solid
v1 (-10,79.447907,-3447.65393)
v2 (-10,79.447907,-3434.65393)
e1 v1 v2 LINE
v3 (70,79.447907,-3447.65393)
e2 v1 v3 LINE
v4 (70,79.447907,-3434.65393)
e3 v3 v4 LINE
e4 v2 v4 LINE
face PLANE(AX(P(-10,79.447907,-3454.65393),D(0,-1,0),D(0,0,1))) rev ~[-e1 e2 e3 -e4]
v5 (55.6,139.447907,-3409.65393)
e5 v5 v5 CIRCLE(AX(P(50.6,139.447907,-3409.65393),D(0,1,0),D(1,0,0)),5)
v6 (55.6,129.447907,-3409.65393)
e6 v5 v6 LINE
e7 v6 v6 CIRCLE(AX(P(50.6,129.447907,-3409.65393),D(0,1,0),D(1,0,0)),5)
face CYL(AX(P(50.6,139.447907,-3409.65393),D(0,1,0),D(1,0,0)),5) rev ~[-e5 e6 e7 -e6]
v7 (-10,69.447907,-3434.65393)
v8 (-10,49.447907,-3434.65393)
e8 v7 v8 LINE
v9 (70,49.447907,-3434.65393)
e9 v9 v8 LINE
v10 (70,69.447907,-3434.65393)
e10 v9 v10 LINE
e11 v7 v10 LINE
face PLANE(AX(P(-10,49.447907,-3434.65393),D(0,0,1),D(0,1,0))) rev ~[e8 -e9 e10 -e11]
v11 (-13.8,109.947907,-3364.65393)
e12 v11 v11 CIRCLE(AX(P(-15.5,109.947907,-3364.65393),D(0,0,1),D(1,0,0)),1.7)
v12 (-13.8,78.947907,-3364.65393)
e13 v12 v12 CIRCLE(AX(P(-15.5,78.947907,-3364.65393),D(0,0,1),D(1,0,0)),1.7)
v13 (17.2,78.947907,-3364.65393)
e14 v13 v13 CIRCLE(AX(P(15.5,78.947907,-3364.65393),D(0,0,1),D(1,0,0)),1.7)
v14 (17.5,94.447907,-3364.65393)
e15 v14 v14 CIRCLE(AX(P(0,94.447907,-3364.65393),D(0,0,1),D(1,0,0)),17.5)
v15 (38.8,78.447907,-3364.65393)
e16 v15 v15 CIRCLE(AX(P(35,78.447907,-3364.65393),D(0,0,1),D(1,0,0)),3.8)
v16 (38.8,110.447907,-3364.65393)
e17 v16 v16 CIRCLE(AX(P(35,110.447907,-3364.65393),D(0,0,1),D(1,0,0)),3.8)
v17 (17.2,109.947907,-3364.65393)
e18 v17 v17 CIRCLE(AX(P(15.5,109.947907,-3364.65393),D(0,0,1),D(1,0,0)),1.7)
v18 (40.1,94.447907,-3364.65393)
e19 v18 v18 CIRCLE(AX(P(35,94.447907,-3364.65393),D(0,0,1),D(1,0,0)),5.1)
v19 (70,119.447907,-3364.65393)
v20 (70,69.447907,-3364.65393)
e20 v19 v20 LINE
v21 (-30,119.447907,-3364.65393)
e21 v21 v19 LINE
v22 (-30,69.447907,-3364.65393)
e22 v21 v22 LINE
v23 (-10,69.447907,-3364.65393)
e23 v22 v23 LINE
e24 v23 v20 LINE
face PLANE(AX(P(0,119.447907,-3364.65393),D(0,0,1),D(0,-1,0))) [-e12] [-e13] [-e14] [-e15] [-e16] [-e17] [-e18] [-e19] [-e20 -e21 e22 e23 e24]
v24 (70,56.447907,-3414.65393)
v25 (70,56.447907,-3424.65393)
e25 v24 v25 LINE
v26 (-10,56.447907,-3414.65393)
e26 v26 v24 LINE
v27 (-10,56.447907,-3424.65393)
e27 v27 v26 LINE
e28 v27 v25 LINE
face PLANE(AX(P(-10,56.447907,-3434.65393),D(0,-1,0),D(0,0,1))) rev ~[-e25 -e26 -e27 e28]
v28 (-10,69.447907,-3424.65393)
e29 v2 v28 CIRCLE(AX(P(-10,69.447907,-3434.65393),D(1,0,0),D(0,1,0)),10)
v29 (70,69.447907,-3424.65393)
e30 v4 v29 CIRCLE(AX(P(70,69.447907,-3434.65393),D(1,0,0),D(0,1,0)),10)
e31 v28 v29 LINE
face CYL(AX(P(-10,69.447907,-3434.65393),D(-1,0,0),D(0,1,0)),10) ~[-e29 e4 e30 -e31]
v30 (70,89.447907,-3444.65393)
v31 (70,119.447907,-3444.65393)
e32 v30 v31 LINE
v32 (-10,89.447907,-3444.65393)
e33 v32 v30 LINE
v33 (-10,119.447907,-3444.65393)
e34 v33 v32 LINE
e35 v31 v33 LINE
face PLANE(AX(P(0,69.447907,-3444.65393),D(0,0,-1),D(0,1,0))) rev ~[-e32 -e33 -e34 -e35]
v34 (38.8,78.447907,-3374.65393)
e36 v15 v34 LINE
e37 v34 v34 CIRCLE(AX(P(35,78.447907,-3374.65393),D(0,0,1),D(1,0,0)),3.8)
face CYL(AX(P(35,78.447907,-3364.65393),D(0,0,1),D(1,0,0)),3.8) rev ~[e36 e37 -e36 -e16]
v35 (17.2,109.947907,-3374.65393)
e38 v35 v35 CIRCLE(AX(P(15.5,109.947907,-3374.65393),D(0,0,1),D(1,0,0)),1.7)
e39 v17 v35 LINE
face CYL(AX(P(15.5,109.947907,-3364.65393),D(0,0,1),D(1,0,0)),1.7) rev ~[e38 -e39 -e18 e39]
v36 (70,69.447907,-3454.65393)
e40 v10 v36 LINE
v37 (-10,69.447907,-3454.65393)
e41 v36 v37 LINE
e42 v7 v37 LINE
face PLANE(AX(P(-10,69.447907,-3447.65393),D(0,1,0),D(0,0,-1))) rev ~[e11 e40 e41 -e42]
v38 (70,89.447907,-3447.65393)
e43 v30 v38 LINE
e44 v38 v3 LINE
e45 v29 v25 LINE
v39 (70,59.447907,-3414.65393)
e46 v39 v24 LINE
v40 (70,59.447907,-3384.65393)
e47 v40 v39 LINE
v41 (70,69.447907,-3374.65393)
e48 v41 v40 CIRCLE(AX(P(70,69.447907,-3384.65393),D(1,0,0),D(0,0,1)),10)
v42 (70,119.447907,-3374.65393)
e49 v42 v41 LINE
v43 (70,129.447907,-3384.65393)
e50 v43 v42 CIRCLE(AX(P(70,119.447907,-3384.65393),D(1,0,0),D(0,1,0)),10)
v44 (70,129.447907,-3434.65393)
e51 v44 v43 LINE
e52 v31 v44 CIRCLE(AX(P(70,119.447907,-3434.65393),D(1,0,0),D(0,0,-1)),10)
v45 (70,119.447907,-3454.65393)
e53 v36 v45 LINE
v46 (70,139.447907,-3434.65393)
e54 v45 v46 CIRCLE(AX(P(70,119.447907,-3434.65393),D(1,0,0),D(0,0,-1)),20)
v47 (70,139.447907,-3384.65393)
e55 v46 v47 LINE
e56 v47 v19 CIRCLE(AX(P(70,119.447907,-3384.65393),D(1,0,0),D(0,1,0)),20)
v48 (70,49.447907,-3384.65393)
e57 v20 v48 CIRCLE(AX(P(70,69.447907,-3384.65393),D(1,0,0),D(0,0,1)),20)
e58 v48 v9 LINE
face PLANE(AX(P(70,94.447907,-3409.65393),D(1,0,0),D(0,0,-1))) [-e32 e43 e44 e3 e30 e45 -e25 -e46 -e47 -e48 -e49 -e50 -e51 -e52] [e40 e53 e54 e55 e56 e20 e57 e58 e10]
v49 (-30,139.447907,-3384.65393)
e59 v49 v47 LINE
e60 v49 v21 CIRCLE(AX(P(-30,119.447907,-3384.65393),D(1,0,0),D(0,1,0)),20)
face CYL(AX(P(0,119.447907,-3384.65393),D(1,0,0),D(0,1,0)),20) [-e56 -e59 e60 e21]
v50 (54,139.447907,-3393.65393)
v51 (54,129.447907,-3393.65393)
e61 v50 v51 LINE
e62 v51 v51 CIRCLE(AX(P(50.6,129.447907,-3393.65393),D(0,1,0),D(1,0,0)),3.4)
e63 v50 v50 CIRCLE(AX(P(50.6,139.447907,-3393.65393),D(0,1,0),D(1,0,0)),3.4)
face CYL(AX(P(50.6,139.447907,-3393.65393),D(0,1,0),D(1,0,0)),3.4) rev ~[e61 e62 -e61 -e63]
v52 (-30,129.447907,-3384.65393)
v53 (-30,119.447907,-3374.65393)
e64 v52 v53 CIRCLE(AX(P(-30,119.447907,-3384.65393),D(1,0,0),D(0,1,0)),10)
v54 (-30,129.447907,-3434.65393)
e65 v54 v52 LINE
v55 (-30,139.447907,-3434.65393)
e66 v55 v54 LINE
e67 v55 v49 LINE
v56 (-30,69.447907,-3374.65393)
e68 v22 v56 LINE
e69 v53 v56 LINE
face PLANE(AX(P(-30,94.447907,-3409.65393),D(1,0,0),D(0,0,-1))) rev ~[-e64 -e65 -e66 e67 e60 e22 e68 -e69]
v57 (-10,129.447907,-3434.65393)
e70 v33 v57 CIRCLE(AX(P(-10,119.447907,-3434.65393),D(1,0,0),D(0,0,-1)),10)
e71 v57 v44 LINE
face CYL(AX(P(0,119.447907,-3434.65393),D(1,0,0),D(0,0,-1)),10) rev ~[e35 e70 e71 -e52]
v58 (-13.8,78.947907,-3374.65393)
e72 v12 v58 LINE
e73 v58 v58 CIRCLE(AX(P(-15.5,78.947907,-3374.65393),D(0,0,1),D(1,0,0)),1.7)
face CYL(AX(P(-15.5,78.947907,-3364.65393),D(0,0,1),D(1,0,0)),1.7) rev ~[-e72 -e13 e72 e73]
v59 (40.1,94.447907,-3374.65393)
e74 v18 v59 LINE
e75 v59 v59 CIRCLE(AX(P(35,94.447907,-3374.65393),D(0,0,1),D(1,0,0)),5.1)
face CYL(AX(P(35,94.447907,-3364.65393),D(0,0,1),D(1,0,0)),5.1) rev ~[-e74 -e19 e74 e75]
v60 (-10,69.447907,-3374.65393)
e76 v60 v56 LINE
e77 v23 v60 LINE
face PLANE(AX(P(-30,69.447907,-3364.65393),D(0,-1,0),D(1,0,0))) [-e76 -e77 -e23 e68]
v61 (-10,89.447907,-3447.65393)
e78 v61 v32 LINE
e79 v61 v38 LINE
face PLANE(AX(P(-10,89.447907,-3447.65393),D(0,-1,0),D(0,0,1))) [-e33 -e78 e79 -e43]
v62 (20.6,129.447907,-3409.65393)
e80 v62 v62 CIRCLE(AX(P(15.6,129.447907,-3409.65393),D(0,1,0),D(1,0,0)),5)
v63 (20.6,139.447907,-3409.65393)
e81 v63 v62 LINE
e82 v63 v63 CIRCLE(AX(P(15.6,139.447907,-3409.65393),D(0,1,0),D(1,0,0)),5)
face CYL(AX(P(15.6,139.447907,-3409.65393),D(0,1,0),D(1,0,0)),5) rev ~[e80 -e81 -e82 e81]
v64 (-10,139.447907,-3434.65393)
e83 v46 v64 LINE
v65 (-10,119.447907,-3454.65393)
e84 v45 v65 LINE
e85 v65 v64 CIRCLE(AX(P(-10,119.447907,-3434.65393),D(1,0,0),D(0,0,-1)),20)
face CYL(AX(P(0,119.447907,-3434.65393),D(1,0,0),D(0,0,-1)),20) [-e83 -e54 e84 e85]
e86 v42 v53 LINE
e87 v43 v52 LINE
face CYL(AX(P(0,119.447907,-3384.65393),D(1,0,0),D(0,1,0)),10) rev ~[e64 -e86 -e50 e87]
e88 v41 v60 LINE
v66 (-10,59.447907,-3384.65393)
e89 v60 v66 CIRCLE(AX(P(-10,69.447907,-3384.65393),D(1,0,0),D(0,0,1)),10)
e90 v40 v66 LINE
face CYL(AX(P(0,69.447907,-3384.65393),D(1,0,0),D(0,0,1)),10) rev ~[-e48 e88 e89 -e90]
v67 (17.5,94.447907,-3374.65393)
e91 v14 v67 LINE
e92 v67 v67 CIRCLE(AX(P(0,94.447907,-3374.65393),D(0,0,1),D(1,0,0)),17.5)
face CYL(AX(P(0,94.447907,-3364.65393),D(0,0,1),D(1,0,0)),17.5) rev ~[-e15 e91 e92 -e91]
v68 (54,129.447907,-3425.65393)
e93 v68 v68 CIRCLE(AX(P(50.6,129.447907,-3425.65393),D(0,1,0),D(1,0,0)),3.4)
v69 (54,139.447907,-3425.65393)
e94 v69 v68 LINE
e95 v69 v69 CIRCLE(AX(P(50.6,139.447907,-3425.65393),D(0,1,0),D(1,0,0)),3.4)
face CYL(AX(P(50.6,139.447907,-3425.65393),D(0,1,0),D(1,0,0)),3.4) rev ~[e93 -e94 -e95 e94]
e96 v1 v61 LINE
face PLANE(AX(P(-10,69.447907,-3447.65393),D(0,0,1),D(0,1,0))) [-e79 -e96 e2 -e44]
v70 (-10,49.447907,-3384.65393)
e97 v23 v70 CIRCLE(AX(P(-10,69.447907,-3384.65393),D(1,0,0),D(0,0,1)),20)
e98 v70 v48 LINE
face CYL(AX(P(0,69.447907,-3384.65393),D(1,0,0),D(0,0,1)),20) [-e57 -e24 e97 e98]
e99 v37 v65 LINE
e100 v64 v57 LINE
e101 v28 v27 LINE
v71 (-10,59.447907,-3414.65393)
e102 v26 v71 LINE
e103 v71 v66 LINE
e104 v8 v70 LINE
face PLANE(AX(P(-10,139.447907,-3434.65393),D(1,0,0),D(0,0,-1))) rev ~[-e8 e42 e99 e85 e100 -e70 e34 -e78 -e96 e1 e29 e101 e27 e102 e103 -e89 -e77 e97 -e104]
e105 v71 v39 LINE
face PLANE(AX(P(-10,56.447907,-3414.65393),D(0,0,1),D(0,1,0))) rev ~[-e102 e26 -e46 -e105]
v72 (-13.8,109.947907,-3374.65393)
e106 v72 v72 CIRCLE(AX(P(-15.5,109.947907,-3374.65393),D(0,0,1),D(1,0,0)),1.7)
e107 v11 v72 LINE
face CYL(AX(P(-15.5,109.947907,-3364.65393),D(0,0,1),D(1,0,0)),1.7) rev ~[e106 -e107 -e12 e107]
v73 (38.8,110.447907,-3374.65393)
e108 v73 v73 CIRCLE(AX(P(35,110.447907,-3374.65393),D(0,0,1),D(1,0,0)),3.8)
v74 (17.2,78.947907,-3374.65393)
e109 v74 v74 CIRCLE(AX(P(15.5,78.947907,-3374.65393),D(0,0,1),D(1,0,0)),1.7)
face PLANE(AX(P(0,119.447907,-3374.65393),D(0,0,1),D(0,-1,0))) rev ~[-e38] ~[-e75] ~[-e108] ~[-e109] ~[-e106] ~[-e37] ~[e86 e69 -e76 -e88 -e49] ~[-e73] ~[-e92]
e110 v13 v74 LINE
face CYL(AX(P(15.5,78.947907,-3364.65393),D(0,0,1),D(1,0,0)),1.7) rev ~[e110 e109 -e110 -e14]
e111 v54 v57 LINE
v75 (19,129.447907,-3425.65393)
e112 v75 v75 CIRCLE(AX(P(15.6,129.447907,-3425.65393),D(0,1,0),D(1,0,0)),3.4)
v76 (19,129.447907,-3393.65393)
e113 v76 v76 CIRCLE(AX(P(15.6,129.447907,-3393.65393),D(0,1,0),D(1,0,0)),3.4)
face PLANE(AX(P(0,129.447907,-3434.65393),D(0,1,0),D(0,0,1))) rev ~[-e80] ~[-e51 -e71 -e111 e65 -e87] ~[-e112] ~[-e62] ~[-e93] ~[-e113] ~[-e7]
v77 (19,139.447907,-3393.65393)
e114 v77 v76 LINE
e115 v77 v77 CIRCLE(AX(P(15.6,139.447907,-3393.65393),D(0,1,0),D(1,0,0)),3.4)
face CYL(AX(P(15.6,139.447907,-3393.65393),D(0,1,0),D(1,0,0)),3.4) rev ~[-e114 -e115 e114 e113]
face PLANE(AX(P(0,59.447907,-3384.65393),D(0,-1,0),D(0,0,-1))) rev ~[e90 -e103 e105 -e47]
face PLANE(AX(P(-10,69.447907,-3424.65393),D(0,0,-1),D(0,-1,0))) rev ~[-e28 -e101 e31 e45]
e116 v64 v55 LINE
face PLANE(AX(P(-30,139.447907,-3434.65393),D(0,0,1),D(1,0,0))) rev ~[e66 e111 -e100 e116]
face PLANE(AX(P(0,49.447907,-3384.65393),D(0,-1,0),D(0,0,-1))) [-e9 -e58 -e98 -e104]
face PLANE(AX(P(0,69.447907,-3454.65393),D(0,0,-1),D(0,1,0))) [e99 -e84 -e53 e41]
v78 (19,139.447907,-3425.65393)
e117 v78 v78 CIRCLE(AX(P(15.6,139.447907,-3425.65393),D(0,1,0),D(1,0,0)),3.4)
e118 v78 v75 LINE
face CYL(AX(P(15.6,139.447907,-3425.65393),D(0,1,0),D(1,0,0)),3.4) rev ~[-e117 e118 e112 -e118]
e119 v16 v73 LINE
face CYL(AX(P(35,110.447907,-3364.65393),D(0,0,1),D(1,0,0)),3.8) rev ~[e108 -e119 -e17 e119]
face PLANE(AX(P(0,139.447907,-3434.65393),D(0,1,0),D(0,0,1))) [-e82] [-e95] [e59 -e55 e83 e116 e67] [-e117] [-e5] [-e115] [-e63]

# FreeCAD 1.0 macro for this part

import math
import FreeCAD as App
import Part
import Sketcher

V = App.Vector
Q = App.Units.Quantity


def add_polygon(sketch, points):
    """Adds a closed chain of lines whose ends are joined by coincident constraints."""
    first, n = sketch.GeometryCount, len(points)
    for a, b in zip(points, points[1:] + points[:1]):
        sketch.addGeometry(Part.LineSegment(App.Vector(*a, 0), App.Vector(*b, 0)), False)
    for i in range(n):
        sketch.addConstraint(Sketcher.Constraint("Coincident", first + i, 2, first + (i + 1) % n, 1))

doc = App.newDocument("Part")
body = doc.addObject("PartDesign::Body", "Body")

sketch1 = body.newObject("Sketcher::SketchObject", "Sketch")
sketch1.AttachmentSupport = (doc.getObject("YZ_Plane"), [""])
sketch1.MapMode = "FlatFace"
sketch1.addGeometry([
    Part.LineSegment(V(139, -3435, 0), V(139, -3385, 0)),
    Part.ArcOfCircle(Part.Circle(V(119, -3385, 0), V(0, 0, 1), 20), math.radians(0), math.radians(90)),
    Part.LineSegment(V(119, -3365, 0), V(69, -3365, 0)),
    Part.ArcOfCircle(Part.Circle(V(69, -3385, 0), V(0, 0, 1), 20), math.radians(90), math.radians(180)),
    Part.LineSegment(V(49, -3385, 0), V(49, -3435, 0)),
    Part.ArcOfCircle(Part.Circle(V(69, -3435, 0), V(0, 0, 1), 20), math.radians(180), math.radians(270)),
    Part.LineSegment(V(69, -3455, 0), V(119, -3455, 0)),
    Part.ArcOfCircle(Part.Circle(V(119, -3435, 0), V(0, 0, 1), 20), math.radians(-90), math.radians(0)),
    Part.LineSegment(V(129, -3385, 0), V(129, -3435, 0)),
    Part.ArcOfCircle(Part.Circle(V(119, -3435, 0), V(0, 0, 1), 10), math.radians(-90), math.radians(0)),
    Part.LineSegment(V(119, -3445, 0), V(69, -3445, 0)),
    Part.ArcOfCircle(Part.Circle(V(69, -3435, 0), V(0, 0, 1), 10), math.radians(180), math.radians(270)),
    Part.LineSegment(V(59, -3435, 0), V(59, -3385, 0)),
    Part.ArcOfCircle(Part.Circle(V(69, -3385, 0), V(0, 0, 1), 10), math.radians(90), math.radians(180)),
    Part.LineSegment(V(69, -3375, 0), V(119, -3375, 0)),
    Part.ArcOfCircle(Part.Circle(V(119, -3385, 0), V(0, 0, 1), 10), math.radians(0), math.radians(90)),
], False)
sketch1.addConstraint([
    Sketcher.Constraint("Tangent", 0, 2, 1, 1),
    Sketcher.Constraint("Tangent", 1, 2, 2, 1),
    Sketcher.Constraint("Tangent", 2, 2, 3, 1),
    Sketcher.Constraint("Tangent", 3, 2, 4, 1),
    Sketcher.Constraint("Tangent", 4, 2, 5, 1),
    Sketcher.Constraint("Tangent", 5, 2, 6, 1),
    Sketcher.Constraint("Tangent", 6, 2, 7, 1),
    Sketcher.Constraint("Tangent", 7, 2, 0, 1),
    Sketcher.Constraint("Tangent", 8, 2, 9, 2),
    Sketcher.Constraint("Tangent", 9, 1, 10, 1),
    Sketcher.Constraint("Tangent", 10, 2, 11, 2),
    Sketcher.Constraint("Tangent", 11, 1, 12, 1),
    Sketcher.Constraint("Tangent", 12, 2, 13, 2),
    Sketcher.Constraint("Tangent", 13, 1, 14, 1),
    Sketcher.Constraint("Tangent", 14, 2, 15, 2),
    Sketcher.Constraint("Tangent", 15, 1, 8, 1),
    Sketcher.Constraint("Vertical", 0),
    Sketcher.Constraint("Horizontal", 2),
    Sketcher.Constraint("Vertical", 4),
    Sketcher.Constraint("Horizontal", 6),
    Sketcher.Constraint("Vertical", 8),
    Sketcher.Constraint("Horizontal", 10),
    Sketcher.Constraint("Vertical", 12),
    Sketcher.Constraint("Horizontal", 14),
    Sketcher.Constraint("Coincident", 9, 3, 7, 3),
    Sketcher.Constraint("Coincident", 11, 3, 5, 3),
    Sketcher.Constraint("Coincident", 13, 3, 3, 3),
    Sketcher.Constraint("Equal", 1, 3),
    Sketcher.Constraint("Equal", 3, 5),
    Sketcher.Constraint("Equal", 5, 7),
    Sketcher.Constraint("Equal", 13, 15),
    Sketcher.Constraint("Equal", 14, 0),
    Sketcher.Constraint("Radius", 1, Q("20 mm")),
    Sketcher.Constraint("Radius", 9, Q("10 mm")),
    Sketcher.Constraint("DistanceX", 2, 2, 2, 1, Q("50 mm")),
    Sketcher.Constraint("DistanceY", 1, 3, -1, 1, Q("3384.65393 mm")),
    Sketcher.Constraint("DistanceX", -1, 1, 1, 3, Q("119.447907 mm")),
])
pad1 = body.newObject("PartDesign::Pad", "Pad")
pad1.Profile = sketch1
pad1.Type = "TwoLengths"
pad1.Length = 70
pad1.Length2 = 30

sketch2 = body.newObject("Sketcher::SketchObject", "Sketch001")
sketch2.AttachmentSupport = (doc.getObject("XY_Plane"), [""])
sketch2.MapMode = "FlatFace"
sketch2.AttachmentOffset = App.Placement(V(0, 0, -3364.65393), App.Rotation())
sketch2.addGeometry(Part.Circle(V(15.5, 78.9, 0), V(0, 0, 1), 1.7), False)
sketch2.addConstraint([
    Sketcher.Constraint("Diameter", 0, Q("3.4 mm")),
    Sketcher.Constraint("DistanceX", -1, 1, 0, 3, Q("15.5 mm")),
    Sketcher.Constraint("DistanceY", -1, 1, 0, 3, Q("78.947907 mm")),
])
pocket1 = body.newObject("PartDesign::Pocket", "Pocket")
pocket1.Profile = sketch2
pocket1.Type = "UpToFirst"

sketch3 = body.newObject("Sketcher::SketchObject", "Sketch002")
sketch3.AttachmentSupport = (doc.getObject("XY_Plane"), [""])
sketch3.MapMode = "FlatFace"
sketch3.AttachmentOffset = App.Placement(V(0, 0, -3364.65393), App.Rotation())
sketch3.addGeometry(Part.Circle(V(15.5, 109.9, 0), V(0, 0, 1), 1.7), False)
sketch3.addConstraint([
    Sketcher.Constraint("Diameter", 0, Q("3.4 mm")),
    Sketcher.Constraint("DistanceX", -1, 1, 0, 3, Q("15.5 mm")),
    Sketcher.Constraint("DistanceY", -1, 1, 0, 3, Q("109.947907 mm")),
])
pocket2 = body.newObject("PartDesign::Pocket", "Pocket001")
pocket2.Profile = sketch3
pocket2.Type = "UpToFirst"

sketch4 = body.newObject("Sketcher::SketchObject", "Sketch003")
sketch4.AttachmentSupport = (doc.getObject("XY_Plane"), [""])
sketch4.MapMode = "FlatFace"
sketch4.AttachmentOffset = App.Placement(V(0, 0, -3364.65393), App.Rotation())
sketch4.addGeometry(Part.Circle(V(-15.5, 109.9, 0), V(0, 0, 1), 1.7), False)
sketch4.addConstraint([
    Sketcher.Constraint("Diameter", 0, Q("3.4 mm")),
    Sketcher.Constraint("DistanceX", 0, 3, -1, 1, Q("15.5 mm")),
    Sketcher.Constraint("DistanceY", -1, 1, 0, 3, Q("109.947907 mm")),
])
pocket3 = body.newObject("PartDesign::Pocket", "Pocket002")
pocket3.Profile = sketch4
pocket3.Type = "UpToFirst"

sketch5 = body.newObject("Sketcher::SketchObject", "Sketch004")
sketch5.AttachmentSupport = (doc.getObject("XY_Plane"), [""])
sketch5.MapMode = "FlatFace"
sketch5.AttachmentOffset = App.Placement(V(0, 0, -3364.65393), App.Rotation())
sketch5.addGeometry(Part.Circle(V(-15.5, 78.9, 0), V(0, 0, 1), 1.7), False)
sketch5.addConstraint([
    Sketcher.Constraint("Diameter", 0, Q("3.4 mm")),
    Sketcher.Constraint("DistanceX", 0, 3, -1, 1, Q("15.5 mm")),
    Sketcher.Constraint("DistanceY", -1, 1, 0, 3, Q("78.947907 mm")),
])
pocket4 = body.newObject("PartDesign::Pocket", "Pocket003")
pocket4.Profile = sketch5
pocket4.Type = "UpToFirst"

sketch6 = body.newObject("Sketcher::SketchObject", "Sketch005")
sketch6.AttachmentSupport = (doc.getObject("XY_Plane"), [""])
sketch6.MapMode = "FlatFace"
sketch6.AttachmentOffset = App.Placement(V(0, 0, -3364.65393), App.Rotation())
sketch6.addGeometry(Part.Circle(V(0, 94, 0), V(0, 0, 1), 18), False)
sketch6.addConstraint([
    Sketcher.Constraint("PointOnObject", 0, 3, -2),
    Sketcher.Constraint("Diameter", 0, Q("35 mm")),
    Sketcher.Constraint("DistanceY", -1, 1, 0, 3, Q("94.447907 mm")),
])
pocket5 = body.newObject("PartDesign::Pocket", "Pocket004")
pocket5.Profile = sketch6
pocket5.Type = "UpToFirst"

sketch7 = body.newObject("Sketcher::SketchObject", "Sketch006")
sketch7.AttachmentSupport = (doc.getObject("XY_Plane"), [""])
sketch7.MapMode = "FlatFace"
sketch7.AttachmentOffset = App.Placement(V(0, 0, -3364.65393), App.Rotation())
sketch7.addGeometry(Part.Circle(V(35, 94, 0), V(0, 0, 1), 5), False)
sketch7.addConstraint([
    Sketcher.Constraint("Diameter", 0, Q("10.2 mm")),
    Sketcher.Constraint("DistanceX", -1, 1, 0, 3, Q("35 mm")),
    Sketcher.Constraint("DistanceY", -1, 1, 0, 3, Q("94.447907 mm")),
])
pocket6 = body.newObject("PartDesign::Pocket", "Pocket005")
pocket6.Profile = sketch7
pocket6.Type = "UpToFirst"

sketch8 = body.newObject("Sketcher::SketchObject", "Sketch007")
sketch8.AttachmentSupport = (doc.getObject("XY_Plane"), [""])
sketch8.MapMode = "FlatFace"
sketch8.AttachmentOffset = App.Placement(V(0, 0, -3364.65393), App.Rotation())
sketch8.addGeometry(Part.Circle(V(35, 78.4, 0), V(0, 0, 1), 3.8), False)
sketch8.addConstraint([
    Sketcher.Constraint("Diameter", 0, Q("7.6 mm")),
    Sketcher.Constraint("DistanceX", -1, 1, 0, 3, Q("35 mm")),
    Sketcher.Constraint("DistanceY", -1, 1, 0, 3, Q("78.447907 mm")),
])
pocket7 = body.newObject("PartDesign::Pocket", "Pocket006")
pocket7.Profile = sketch8
pocket7.Type = "UpToFirst"

sketch9 = body.newObject("Sketcher::SketchObject", "Sketch008")
sketch9.AttachmentSupport = (doc.getObject("XY_Plane"), [""])
sketch9.MapMode = "FlatFace"
sketch9.AttachmentOffset = App.Placement(V(0, 0, -3364.65393), App.Rotation())
sketch9.addGeometry(Part.Circle(V(35, 110.4, 0), V(0, 0, 1), 3.8), False)
sketch9.addConstraint([
    Sketcher.Constraint("Diameter", 0, Q("7.6 mm")),
    Sketcher.Constraint("DistanceX", -1, 1, 0, 3, Q("35 mm")),
    Sketcher.Constraint("DistanceY", -1, 1, 0, 3, Q("110.447907 mm")),
])
pocket8 = body.newObject("PartDesign::Pocket", "Pocket007")
pocket8.Profile = sketch9
pocket8.Type = "UpToFirst"

sketch10 = body.newObject("Sketcher::SketchObject", "Sketch009")
sketch10.AttachmentSupport = (doc.getObject("XZ_Plane"), [""])
sketch10.MapMode = "FlatFace"
sketch10.AttachmentOffset = App.Placement(V(0, 0, -139.447907), App.Rotation())
sketch10.addGeometry(Part.Circle(V(16, -3410, 0), V(0, 0, 1), 5), False)
sketch10.addConstraint([
    Sketcher.Constraint("Diameter", 0, Q("10 mm")),
    Sketcher.Constraint("DistanceX", -1, 1, 0, 3, Q("15.6 mm")),
    Sketcher.Constraint("DistanceY", 0, 3, -1, 1, Q("3409.65393 mm")),
])
pocket9 = body.newObject("PartDesign::Pocket", "Pocket008")
pocket9.Profile = sketch10
pocket9.Type = "UpToFirst"
pocket9.Reversed = True

sketch11 = body.newObject("Sketcher::SketchObject", "Sketch010")
sketch11.AttachmentSupport = (doc.getObject("XZ_Plane"), [""])
sketch11.MapMode = "FlatFace"
sketch11.AttachmentOffset = App.Placement(V(0, 0, -139.447907), App.Rotation())
sketch11.addGeometry(Part.Circle(V(51, -3410, 0), V(0, 0, 1), 5), False)
sketch11.addConstraint([
    Sketcher.Constraint("Diameter", 0, Q("10 mm")),
    Sketcher.Constraint("DistanceX", -1, 1, 0, 3, Q("50.6 mm")),
    Sketcher.Constraint("DistanceY", 0, 3, -1, 1, Q("3409.65393 mm")),
])
pocket10 = body.newObject("PartDesign::Pocket", "Pocket009")
pocket10.Profile = sketch11
pocket10.Type = "UpToFirst"
pocket10.Reversed = True

sketch12 = body.newObject("Sketcher::SketchObject", "Sketch011")
sketch12.AttachmentSupport = (doc.getObject("XZ_Plane"), [""])
sketch12.MapMode = "FlatFace"
sketch12.AttachmentOffset = App.Placement(V(0, 0, -139.447907), App.Rotation())
sketch12.addGeometry(Part.Circle(V(50.6, -3425.7, 0), V(0, 0, 1), 3.4), False)
sketch12.addConstraint([
    Sketcher.Constraint("Diameter", 0, Q("6.8 mm")),
    Sketcher.Constraint("DistanceX", -1, 1, 0, 3, Q("50.6 mm")),
    Sketcher.Constraint("DistanceY", 0, 3, -1, 1, Q("3425.65393 mm")),
])
pocket11 = body.newObject("PartDesign::Pocket", "Pocket010")
pocket11.Profile = sketch12
pocket11.Type = "UpToFirst"
pocket11.Reversed = True

sketch13 = body.newObject("Sketcher::SketchObject", "Sketch012")
sketch13.AttachmentSupport = (doc.getObject("XZ_Plane"), [""])
sketch13.MapMode = "FlatFace"
sketch13.AttachmentOffset = App.Placement(V(0, 0, -139.447907), App.Rotation())
sketch13.addGeometry(Part.Circle(V(50.6, -3393.7, 0), V(0, 0, 1), 3.4), False)
sketch13.addConstraint([
    Sketcher.Constraint("Diameter", 0, Q("6.8 mm")),
    Sketcher.Constraint("DistanceX", -1, 1, 0, 3, Q("50.6 mm")),
    Sketcher.Constraint("DistanceY", 0, 3, -1, 1, Q("3393.65393 mm")),
])
pocket12 = body.newObject("PartDesign::Pocket", "Pocket011")
pocket12.Profile = sketch13
pocket12.Type = "UpToFirst"
pocket12.Reversed = True

sketch14 = body.newObject("Sketcher::SketchObject", "Sketch013")
sketch14.AttachmentSupport = (doc.getObject("XZ_Plane"), [""])
sketch14.MapMode = "FlatFace"
sketch14.AttachmentOffset = App.Placement(V(0, 0, -139.447907), App.Rotation())
sketch14.addGeometry(Part.Circle(V(15.6, -3425.7, 0), V(0, 0, 1), 3.4), False)
sketch14.addConstraint([
    Sketcher.Constraint("Diameter", 0, Q("6.8 mm")),
    Sketcher.Constraint("DistanceX", -1, 1, 0, 3, Q("15.6 mm")),
    Sketcher.Constraint("DistanceY", 0, 3, -1, 1, Q("3425.65393 mm")),
])
pocket13 = body.newObject("PartDesign::Pocket", "Pocket012")
pocket13.Profile = sketch14
pocket13.Type = "UpToFirst"
pocket13.Reversed = True

sketch15 = body.newObject("Sketcher::SketchObject", "Sketch014")
sketch15.AttachmentSupport = (doc.getObject("XZ_Plane"), [""])
sketch15.MapMode = "FlatFace"
sketch15.AttachmentOffset = App.Placement(V(0, 0, -139.447907), App.Rotation())
sketch15.addGeometry(Part.Circle(V(15.6, -3393.7, 0), V(0, 0, 1), 3.4), False)
sketch15.addConstraint([
    Sketcher.Constraint("Diameter", 0, Q("6.8 mm")),
    Sketcher.Constraint("DistanceX", -1, 1, 0, 3, Q("15.6 mm")),
    Sketcher.Constraint("DistanceY", 0, 3, -1, 1, Q("3393.65393 mm")),
])
pocket14 = body.newObject("PartDesign::Pocket", "Pocket013")
pocket14.Profile = sketch15
pocket14.Type = "UpToFirst"
pocket14.Reversed = True

sketch16 = body.newObject("Sketcher::SketchObject", "Sketch015")
sketch16.AttachmentSupport = (doc.getObject("XY_Plane"), [""])
sketch16.MapMode = "FlatFace"
sketch16.AttachmentOffset = App.Placement(V(0, 0, -3364.65393), App.Rotation())
add_polygon(sketch16, [(-30, 69), (-30, 49), (-10, 49), (-10, 69)])
sketch16.addConstraint([
    Sketcher.Constraint("Vertical", 0),
    Sketcher.Constraint("Horizontal", 1),
    Sketcher.Constraint("Vertical", 2),
    Sketcher.Constraint("Horizontal", 3),
    Sketcher.Constraint("Equal", 3, 0),
    Sketcher.Constraint("DistanceX", 1, 1, 1, 2, Q("20 mm")),
    Sketcher.Constraint("DistanceX", 0, 2, -1, 1, Q("30 mm")),
    Sketcher.Constraint("DistanceY", -1, 1, 0, 2, Q("49.447907 mm")),
])
pocket15 = body.newObject("PartDesign::Pocket", "Pocket014")
pocket15.Profile = sketch16
pocket15.Type = "ThroughAll"
pocket15.Midplane = True

sketch17 = body.newObject("Sketcher::SketchObject", "Sketch016")
sketch17.AttachmentSupport = (doc.getObject("XZ_Plane"), [""])
sketch17.MapMode = "FlatFace"
sketch17.AttachmentOffset = App.Placement(V(0, 0, -139.447907), App.Rotation())
add_polygon(sketch17, [(-30, -3455), (-30, -3435), (-10, -3435), (-10, -3455)])
sketch17.addConstraint([
    Sketcher.Constraint("Vertical", 0),
    Sketcher.Constraint("Horizontal", 1),
    Sketcher.Constraint("Vertical", 2),
    Sketcher.Constraint("Horizontal", 3),
    Sketcher.Constraint("Equal", 3, 0),
    Sketcher.Constraint("DistanceX", 1, 1, 1, 2, Q("20 mm")),
    Sketcher.Constraint("DistanceX", 0, 2, -1, 1, Q("30 mm")),
    Sketcher.Constraint("DistanceY", 0, 2, -1, 1, Q("3434.65393 mm")),
])
pocket16 = body.newObject("PartDesign::Pocket", "Pocket015")
pocket16.Profile = sketch17
pocket16.Type = "ThroughAll"
pocket16.Reversed = True

sketch18 = body.newObject("Sketcher::SketchObject", "Sketch017")
sketch18.AttachmentSupport = (doc.getObject("YZ_Plane"), [""])
sketch18.MapMode = "FlatFace"
sketch18.AttachmentOffset = App.Placement(V(0, 0, -10), App.Rotation())
sketch18.addGeometry([
    Part.ArcOfCircle(Part.Circle(V(69.4, -3434.7, 0), V(0, 0, 1), 20), math.radians(180), math.radians(270)),
    Part.LineSegment(V(49.4, -3434.7, 0), V(56.4, -3434.7, 0)),
    Part.LineSegment(V(56.4, -3434.7, 0), V(56.4, -3414.7, 0)),
    Part.LineSegment(V(56.4, -3414.7, 0), V(59.4, -3414.7, 0)),
    Part.LineSegment(V(59.4, -3414.7, 0), V(59.4, -3434.7, 0)),
    Part.ArcOfCircle(Part.Circle(V(69.4, -3434.7, 0), V(0, 0, 1), 10), math.radians(180), math.radians(270)),
    Part.LineSegment(V(69.4, -3444.7, 0), V(89.4, -3444.7, 0)),
    Part.LineSegment(V(89.4, -3444.7, 0), V(89.4, -3447.7, 0)),
    Part.LineSegment(V(89.4, -3447.7, 0), V(69.4, -3447.7, 0)),
    Part.LineSegment(V(69.4, -3447.7, 0), V(69.4, -3454.7, 0)),
], False)
sketch18.addConstraint([
    Sketcher.Constraint("Coincident", 0, 1, 1, 1),
    Sketcher.Constraint("Coincident", 1, 2, 2, 1),
    Sketcher.Constraint("Coincident", 2, 2, 3, 1),
    Sketcher.Constraint("Coincident", 3, 2, 4, 1),
    Sketcher.Constraint("Tangent", 4, 2, 5, 1),
    Sketcher.Constraint("Tangent", 5, 2, 6, 1),
    Sketcher.Constraint("Coincident", 6, 2, 7, 1),
    Sketcher.Constraint("Coincident", 7, 2, 8, 1),
    Sketcher.Constraint("Coincident", 8, 2, 9, 1),
    Sketcher.Constraint("Coincident", 9, 2, 0, 2),
    Sketcher.Constraint("Horizontal", 1),
    Sketcher.Constraint("Vertical", 2),
    Sketcher.Constraint("Horizontal", 3),
    Sketcher.Constraint("Vertical", 4),
    Sketcher.Constraint("Horizontal", 6),
    Sketcher.Constraint("Vertical", 7),
    Sketcher.Constraint("Horizontal", 8),
    Sketcher.Constraint("Vertical", 9),
    Sketcher.Constraint("Coincident", 5, 3, 0, 3),
    Sketcher.Constraint("Horizontal", 5, 3, 0, 1),
    Sketcher.Constraint("Vertical", 5, 2, 8, 2),
    Sketcher.Constraint("Equal", 8, 2),
    Sketcher.Constraint("Equal", 3, 7),
    Sketcher.Constraint("Radius", 0, Q("20 mm")),
    Sketcher.Constraint("Radius", 5, Q("10 mm")),
    Sketcher.Constraint("DistanceX", 1, 1, 1, 2, Q("7 mm")),
    Sketcher.Constraint("DistanceX", 6, 1, 6, 2, Q("20 mm")),
    Sketcher.Constraint("DistanceY", 0, 3, -1, 1, Q("3434.65393 mm")),
    Sketcher.Constraint("DistanceX", -1, 1, 0, 3, Q("69.447907 mm")),
])
pocket17 = body.newObject("PartDesign::Pocket", "Pocket016")
pocket17.Profile = sketch18
pocket17.Type = "ThroughAll"
pocket17.Reversed = True

sketch19 = body.newObject("Sketcher::SketchObject", "Sketch018")
sketch19.AttachmentSupport = (doc.getObject("YZ_Plane"), [""])
sketch19.MapMode = "FlatFace"
sketch19.AttachmentOffset = App.Placement(V(0, 0, -10), App.Rotation())
sketch19.addGeometry([
    Part.LineSegment(V(79, -3435, 0), V(79, -3455, 0)),
    Part.LineSegment(V(79, -3455, 0), V(69, -3455, 0)),
    Part.LineSegment(V(69, -3455, 0), V(69, -3435, 0)),
    Part.LineSegment(V(69, -3435, 0), V(49, -3435, 0)),
    Part.LineSegment(V(49, -3435, 0), V(49, -3425, 0)),
    Part.LineSegment(V(49, -3425, 0), V(69, -3425, 0)),
    Part.ArcOfCircle(Part.Circle(V(69, -3435, 0), V(0, 0, 1), 10), math.radians(0), math.radians(90)),
], False)
sketch19.addConstraint([
    Sketcher.Constraint("Coincident", 0, 2, 1, 1),
    Sketcher.Constraint("Coincident", 1, 2, 2, 1),
    Sketcher.Constraint("Coincident", 2, 2, 3, 1),
    Sketcher.Constraint("Coincident", 3, 2, 4, 1),
    Sketcher.Constraint("Coincident", 4, 2, 5, 1),
    Sketcher.Constraint("Tangent", 5, 2, 6, 2),
    Sketcher.Constraint("Tangent", 6, 1, 0, 1),
    Sketcher.Constraint("Vertical", 0),
    Sketcher.Constraint("Horizontal", 1),
    Sketcher.Constraint("Vertical", 2),
    Sketcher.Constraint("Horizontal", 3),
    Sketcher.Constraint("Vertical", 4),
    Sketcher.Constraint("Horizontal", 5),
    Sketcher.Constraint("Coincident", 2, 2, 6, 3),
    Sketcher.Constraint("Equal", 5, 0),
    Sketcher.Constraint("Radius", 6, Q("10 mm")),
    Sketcher.Constraint("DistanceX", 3, 2, 3, 1, Q("20 mm")),
    Sketcher.Constraint("DistanceY", 6, 3, -1, 1, Q("3434.65393 mm")),
    Sketcher.Constraint("DistanceX", -1, 1, 6, 3, Q("69.447907 mm")),
])
pad2 = body.newObject("PartDesign::Pad", "Pad001")
pad2.Profile = sketch19
pad2.Length = 80

doc.recompute()
